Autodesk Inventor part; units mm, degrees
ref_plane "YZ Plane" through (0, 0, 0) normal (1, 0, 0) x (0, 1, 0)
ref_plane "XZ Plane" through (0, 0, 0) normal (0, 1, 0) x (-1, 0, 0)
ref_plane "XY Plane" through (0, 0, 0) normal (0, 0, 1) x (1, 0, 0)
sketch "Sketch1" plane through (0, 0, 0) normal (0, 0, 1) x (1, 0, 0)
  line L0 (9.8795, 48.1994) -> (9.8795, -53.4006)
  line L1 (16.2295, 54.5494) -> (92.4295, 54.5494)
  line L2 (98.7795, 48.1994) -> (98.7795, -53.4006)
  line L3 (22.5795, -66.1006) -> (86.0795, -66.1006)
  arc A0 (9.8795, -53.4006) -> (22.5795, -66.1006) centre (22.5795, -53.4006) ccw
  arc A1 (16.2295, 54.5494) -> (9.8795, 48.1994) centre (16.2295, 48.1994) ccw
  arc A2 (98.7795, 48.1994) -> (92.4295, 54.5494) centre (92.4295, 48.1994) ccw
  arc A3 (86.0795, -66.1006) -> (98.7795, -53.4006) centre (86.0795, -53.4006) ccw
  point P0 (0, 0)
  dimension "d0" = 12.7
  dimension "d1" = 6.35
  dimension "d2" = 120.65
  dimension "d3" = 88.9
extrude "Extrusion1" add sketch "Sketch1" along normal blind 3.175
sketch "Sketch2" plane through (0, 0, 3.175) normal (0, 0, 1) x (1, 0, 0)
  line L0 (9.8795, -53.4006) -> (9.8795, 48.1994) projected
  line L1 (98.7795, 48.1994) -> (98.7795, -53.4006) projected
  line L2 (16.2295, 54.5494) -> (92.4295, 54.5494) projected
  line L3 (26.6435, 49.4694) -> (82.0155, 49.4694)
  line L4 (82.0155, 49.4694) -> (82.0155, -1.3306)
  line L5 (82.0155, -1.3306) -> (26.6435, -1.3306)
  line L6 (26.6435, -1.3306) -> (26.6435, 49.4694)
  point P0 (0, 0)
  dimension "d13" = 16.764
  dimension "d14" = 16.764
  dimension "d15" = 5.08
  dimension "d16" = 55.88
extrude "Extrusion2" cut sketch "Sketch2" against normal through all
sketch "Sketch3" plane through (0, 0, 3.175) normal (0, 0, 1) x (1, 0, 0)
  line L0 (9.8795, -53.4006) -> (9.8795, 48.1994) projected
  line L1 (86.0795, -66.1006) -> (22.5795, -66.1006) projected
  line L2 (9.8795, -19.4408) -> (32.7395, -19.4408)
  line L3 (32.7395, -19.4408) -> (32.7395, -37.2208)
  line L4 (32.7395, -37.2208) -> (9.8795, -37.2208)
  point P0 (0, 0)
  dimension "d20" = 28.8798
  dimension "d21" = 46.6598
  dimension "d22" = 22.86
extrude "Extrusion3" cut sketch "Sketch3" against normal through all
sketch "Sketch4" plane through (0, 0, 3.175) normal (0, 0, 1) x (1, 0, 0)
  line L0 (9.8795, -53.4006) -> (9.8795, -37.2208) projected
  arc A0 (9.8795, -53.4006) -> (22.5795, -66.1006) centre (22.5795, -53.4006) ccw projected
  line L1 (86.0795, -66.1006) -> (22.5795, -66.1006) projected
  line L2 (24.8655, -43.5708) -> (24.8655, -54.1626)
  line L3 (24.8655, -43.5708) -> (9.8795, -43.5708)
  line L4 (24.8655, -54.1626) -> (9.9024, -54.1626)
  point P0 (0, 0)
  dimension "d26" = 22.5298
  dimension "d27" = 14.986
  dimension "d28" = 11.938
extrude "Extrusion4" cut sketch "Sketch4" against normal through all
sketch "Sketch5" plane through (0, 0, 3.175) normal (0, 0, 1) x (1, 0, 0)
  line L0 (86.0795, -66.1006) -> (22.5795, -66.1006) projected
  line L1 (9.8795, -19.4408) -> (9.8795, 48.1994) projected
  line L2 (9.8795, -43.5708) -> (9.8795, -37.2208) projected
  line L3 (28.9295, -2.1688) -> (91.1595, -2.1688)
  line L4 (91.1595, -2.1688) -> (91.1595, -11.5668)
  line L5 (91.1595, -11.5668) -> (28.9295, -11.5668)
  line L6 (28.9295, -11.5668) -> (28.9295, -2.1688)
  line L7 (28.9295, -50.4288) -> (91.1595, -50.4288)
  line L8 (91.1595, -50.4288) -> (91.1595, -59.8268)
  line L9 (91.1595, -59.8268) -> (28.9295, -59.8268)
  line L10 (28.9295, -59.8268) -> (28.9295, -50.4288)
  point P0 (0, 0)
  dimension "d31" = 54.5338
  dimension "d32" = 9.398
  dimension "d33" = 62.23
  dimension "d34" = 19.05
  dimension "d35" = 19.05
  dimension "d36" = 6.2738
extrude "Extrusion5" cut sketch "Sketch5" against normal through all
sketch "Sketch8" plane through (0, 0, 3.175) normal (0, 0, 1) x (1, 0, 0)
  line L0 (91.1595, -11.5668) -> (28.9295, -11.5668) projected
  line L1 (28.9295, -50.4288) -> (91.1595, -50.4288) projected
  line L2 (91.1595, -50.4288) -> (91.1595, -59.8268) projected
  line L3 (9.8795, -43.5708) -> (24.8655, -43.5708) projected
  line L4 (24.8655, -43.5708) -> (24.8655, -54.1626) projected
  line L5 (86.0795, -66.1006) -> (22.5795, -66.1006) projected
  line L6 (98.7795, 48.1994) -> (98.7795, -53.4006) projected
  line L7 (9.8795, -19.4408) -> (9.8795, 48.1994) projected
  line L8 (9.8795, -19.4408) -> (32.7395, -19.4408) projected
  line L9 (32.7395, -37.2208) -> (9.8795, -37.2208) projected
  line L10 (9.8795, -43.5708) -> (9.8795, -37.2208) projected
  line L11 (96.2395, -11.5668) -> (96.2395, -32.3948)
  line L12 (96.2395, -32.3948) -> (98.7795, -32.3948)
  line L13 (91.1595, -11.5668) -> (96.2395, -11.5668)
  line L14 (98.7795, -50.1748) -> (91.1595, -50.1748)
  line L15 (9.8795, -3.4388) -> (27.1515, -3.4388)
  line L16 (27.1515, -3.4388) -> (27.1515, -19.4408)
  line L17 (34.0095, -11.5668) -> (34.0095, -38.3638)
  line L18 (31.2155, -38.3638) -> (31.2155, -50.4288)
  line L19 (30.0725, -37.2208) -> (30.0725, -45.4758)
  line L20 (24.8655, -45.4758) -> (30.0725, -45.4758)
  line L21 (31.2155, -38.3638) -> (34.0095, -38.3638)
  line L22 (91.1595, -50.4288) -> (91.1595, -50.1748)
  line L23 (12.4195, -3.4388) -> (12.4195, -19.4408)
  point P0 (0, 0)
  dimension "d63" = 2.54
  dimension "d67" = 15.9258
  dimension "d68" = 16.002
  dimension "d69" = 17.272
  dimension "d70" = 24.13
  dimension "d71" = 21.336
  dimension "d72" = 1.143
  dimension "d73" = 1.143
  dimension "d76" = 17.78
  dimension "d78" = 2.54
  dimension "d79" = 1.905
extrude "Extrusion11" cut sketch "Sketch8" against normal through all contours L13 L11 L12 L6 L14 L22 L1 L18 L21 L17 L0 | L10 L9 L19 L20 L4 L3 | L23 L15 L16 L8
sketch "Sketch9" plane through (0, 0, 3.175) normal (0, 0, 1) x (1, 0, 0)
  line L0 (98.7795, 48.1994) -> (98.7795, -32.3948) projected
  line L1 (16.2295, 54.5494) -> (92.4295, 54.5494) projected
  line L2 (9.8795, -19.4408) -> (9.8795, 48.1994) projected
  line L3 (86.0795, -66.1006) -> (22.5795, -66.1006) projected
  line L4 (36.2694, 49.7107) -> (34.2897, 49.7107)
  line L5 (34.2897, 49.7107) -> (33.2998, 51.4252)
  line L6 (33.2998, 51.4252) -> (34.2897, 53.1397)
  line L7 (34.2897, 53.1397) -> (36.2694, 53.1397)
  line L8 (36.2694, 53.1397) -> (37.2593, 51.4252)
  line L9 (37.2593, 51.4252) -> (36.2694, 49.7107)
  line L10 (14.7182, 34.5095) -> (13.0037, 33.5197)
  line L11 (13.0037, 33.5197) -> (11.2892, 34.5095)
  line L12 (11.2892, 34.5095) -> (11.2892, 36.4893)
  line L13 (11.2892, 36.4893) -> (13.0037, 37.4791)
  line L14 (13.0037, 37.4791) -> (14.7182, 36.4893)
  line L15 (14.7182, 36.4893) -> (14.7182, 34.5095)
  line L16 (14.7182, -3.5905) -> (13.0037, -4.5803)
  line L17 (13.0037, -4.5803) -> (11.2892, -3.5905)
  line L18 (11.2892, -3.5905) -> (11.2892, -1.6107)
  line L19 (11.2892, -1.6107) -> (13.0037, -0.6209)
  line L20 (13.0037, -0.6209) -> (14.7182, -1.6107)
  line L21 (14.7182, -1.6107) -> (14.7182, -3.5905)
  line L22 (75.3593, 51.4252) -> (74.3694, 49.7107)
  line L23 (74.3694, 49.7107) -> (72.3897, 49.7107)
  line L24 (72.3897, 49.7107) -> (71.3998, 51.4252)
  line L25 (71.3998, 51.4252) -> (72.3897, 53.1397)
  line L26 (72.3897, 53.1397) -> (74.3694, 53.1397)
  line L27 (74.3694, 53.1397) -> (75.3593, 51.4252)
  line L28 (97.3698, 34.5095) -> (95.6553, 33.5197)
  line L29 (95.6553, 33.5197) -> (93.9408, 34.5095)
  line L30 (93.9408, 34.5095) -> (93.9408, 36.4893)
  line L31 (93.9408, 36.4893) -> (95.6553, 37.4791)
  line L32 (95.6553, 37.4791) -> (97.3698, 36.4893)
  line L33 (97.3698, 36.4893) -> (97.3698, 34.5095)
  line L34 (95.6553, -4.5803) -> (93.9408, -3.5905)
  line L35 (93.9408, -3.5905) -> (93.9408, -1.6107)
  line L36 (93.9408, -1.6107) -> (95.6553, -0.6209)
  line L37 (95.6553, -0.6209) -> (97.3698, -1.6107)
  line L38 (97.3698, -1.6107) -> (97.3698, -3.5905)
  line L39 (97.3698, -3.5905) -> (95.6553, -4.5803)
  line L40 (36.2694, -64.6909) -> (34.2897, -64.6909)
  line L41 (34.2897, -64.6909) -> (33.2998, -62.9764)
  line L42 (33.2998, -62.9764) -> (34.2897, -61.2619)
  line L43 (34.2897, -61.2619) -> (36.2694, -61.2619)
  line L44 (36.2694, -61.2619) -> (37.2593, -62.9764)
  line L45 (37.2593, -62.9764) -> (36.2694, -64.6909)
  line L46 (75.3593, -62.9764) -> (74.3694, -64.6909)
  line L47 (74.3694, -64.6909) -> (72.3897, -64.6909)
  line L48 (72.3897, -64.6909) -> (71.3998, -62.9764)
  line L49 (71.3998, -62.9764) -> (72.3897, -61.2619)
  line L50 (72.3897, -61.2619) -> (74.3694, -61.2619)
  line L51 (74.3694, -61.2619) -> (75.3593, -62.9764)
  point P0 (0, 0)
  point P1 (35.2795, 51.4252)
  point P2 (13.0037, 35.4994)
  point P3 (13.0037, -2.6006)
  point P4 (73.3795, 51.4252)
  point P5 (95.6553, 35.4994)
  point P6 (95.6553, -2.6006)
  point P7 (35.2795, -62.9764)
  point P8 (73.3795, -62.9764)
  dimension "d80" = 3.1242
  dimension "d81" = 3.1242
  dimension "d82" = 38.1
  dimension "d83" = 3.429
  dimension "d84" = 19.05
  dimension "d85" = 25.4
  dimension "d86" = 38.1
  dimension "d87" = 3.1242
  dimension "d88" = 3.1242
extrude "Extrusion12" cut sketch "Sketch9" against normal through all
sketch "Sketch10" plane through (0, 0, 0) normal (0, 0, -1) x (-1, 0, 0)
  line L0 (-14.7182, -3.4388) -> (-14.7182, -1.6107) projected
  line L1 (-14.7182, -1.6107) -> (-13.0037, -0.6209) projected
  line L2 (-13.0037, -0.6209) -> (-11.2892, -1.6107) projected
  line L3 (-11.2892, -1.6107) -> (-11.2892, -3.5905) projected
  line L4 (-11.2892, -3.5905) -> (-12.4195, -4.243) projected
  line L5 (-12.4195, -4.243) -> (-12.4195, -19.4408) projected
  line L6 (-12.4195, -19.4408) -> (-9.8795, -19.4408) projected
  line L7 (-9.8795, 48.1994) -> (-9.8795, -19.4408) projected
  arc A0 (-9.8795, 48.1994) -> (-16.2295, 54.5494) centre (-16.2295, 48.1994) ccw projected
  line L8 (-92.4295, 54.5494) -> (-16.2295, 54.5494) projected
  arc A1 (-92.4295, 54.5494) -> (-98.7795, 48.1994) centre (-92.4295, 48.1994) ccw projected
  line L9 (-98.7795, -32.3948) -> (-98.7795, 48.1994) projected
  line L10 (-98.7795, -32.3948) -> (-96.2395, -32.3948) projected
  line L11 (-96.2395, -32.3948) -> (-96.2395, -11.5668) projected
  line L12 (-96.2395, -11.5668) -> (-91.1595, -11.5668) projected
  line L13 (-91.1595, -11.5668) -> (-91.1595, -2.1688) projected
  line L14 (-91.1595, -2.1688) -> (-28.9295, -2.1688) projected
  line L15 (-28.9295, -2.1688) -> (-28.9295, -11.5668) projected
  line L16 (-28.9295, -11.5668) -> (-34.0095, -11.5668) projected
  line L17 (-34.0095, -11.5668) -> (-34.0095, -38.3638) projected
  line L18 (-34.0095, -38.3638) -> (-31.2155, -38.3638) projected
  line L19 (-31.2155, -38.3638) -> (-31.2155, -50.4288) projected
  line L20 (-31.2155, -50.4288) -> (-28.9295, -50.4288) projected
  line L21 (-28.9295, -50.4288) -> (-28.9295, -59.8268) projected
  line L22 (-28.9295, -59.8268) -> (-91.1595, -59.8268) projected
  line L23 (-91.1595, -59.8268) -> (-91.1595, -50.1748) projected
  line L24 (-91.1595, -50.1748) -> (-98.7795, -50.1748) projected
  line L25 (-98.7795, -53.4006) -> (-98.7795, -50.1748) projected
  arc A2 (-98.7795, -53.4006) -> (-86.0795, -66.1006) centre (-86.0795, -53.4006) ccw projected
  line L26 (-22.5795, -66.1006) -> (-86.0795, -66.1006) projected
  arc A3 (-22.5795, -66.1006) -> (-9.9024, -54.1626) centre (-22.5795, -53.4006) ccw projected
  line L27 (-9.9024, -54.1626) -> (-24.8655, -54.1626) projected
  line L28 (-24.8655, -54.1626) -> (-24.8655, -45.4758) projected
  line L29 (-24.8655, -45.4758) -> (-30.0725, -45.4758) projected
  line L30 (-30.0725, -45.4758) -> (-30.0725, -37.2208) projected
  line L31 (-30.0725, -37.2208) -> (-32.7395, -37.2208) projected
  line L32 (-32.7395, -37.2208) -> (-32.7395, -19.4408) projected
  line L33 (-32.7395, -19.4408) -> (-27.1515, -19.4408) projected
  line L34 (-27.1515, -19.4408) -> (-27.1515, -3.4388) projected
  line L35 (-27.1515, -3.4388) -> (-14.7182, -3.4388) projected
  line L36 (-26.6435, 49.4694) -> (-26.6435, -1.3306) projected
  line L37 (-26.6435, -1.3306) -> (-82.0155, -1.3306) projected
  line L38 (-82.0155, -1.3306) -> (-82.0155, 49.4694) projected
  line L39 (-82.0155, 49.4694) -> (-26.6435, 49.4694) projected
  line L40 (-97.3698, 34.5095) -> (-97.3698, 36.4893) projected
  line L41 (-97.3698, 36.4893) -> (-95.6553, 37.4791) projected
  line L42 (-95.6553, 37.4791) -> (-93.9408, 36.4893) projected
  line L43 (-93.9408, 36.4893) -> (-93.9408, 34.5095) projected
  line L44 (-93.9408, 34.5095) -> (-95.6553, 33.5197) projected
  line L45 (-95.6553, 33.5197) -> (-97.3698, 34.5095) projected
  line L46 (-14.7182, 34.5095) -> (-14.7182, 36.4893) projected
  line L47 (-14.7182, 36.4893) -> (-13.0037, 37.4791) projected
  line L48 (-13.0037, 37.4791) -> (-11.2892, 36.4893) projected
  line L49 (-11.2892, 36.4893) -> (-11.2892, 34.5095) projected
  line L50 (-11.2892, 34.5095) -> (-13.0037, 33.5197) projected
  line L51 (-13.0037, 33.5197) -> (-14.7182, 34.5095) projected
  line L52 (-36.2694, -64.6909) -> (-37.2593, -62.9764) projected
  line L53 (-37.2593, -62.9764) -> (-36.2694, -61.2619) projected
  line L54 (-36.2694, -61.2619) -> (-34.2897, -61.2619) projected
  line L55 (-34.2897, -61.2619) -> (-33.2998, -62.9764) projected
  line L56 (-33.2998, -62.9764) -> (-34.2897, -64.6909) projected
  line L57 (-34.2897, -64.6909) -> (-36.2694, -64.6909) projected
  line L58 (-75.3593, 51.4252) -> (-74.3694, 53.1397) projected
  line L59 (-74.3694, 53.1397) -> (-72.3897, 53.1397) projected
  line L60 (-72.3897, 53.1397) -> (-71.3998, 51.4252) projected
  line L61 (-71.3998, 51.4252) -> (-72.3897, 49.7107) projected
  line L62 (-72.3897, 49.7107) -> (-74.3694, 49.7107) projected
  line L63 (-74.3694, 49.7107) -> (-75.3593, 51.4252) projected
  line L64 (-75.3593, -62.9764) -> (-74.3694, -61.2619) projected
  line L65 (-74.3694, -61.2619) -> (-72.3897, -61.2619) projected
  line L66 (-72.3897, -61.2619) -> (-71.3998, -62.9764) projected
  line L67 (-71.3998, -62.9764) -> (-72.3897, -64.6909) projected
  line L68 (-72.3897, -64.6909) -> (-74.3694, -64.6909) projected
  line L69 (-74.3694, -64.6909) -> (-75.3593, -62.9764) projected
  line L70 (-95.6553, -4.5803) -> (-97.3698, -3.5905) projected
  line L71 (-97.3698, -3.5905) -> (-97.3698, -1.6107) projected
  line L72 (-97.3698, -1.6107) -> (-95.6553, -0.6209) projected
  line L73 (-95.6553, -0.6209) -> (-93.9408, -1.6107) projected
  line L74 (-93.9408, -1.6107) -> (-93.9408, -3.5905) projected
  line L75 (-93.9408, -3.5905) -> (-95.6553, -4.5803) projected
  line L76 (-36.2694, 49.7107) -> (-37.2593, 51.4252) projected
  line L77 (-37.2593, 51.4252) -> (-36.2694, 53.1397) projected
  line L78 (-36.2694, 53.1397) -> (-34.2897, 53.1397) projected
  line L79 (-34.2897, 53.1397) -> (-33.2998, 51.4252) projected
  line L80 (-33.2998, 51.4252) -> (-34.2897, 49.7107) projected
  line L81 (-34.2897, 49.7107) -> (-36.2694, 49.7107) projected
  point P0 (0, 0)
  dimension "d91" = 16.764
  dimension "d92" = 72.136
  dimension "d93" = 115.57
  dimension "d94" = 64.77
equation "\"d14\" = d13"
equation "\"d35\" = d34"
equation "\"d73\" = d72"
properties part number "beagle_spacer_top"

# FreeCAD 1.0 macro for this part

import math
import FreeCAD as App
import Part
import Sketcher

V = App.Vector
Q = App.Units.Quantity


def add_polygon(sketch, points):
    """Adds a closed chain of lines whose ends are joined by coincident constraints."""
    first, n = sketch.GeometryCount, len(points)
    for a, b in zip(points, points[1:] + points[:1]):
        sketch.addGeometry(Part.LineSegment(App.Vector(*a, 0), App.Vector(*b, 0)), False)
    for i in range(n):
        sketch.addConstraint(Sketcher.Constraint("Coincident", first + i, 2, first + (i + 1) % n, 1))

doc = App.newDocument("Part")
params = doc.addObject("Spreadsheet::Sheet", "Params")
for row, (alias, value) in enumerate([
    ("sketch1_radius", "0.5 in"),
    ("sketch1_radius2", "0.25 in"),
    ("sketch1_height", "4 in"),
    ("pad1_length", "0.125 in"),
    ("sketch2_height", "2 in"),
    ("sketch2_width", "2.18 in"),
    ("sketch3_width", "0.9 in"),
    ("sketch3_height", "0.7 in"),
    ("sketch4_width", "0.59 in"),
    ("sketch4_radius", "0.5 in"),
    ("sketch4_height", "0.387 in"),
    ("sketch4_height2", "0.417 in"),
    ("sketch5_width", "2.45 in"),
    ("sketch5_height", "0.37 in"),
    ("sketch6_width", "0.1 in"),
    ("sketch6_height", "0.7 in"),
    ("sketch6_height2", "0.63 in"),
    ("sketch6_height3", "0.075 in"),
    ("sketch6_width2", "0.3 in"),
], start=1):
    params.set(f"A{row}", alias)
    params.set(f"B{row}", "=" + value)
    params.setAlias(f"B{row}", alias)

body = doc.addObject("PartDesign::Body", "Body")

sketch1 = doc.addObject("Sketcher::SketchObject", "Sketch")
body.addObject(sketch1)
sketch1.AttachmentSupport = (doc.XY_Plane, [""])
sketch1.MapMode = "FlatFace"
sketch1.addGeometry(Part.ArcOfCircle(Part.Circle(V(16, 48, 0), V(0, 0, 1), 6), math.radians(90), math.radians(180)), False)
sketch1.addGeometry(Part.LineSegment(V(10, 48, 0), V(10, -53, 0)), False)
sketch1.addGeometry(Part.ArcOfCircle(Part.Circle(V(23, -53, 0), V(0, 0, 1), 13), math.radians(180), math.radians(270)), False)
sketch1.addGeometry(Part.LineSegment(V(23, -66, 0), V(86, -66, 0)), False)
sketch1.addGeometry(Part.ArcOfCircle(Part.Circle(V(86, -53, 0), V(0, 0, 1), 13), math.radians(-90), math.radians(0)), False)
sketch1.addGeometry(Part.LineSegment(V(99, -53, 0), V(99, 48, 0)), False)
sketch1.addGeometry(Part.ArcOfCircle(Part.Circle(V(92, 48, 0), V(0, 0, 1), 6), math.radians(0), math.radians(90)), False)
sketch1.addGeometry(Part.LineSegment(V(92, 55, 0), V(16, 55, 0)), False)
sketch1.addConstraint(Sketcher.Constraint("Tangent", 0, 2, 1, 1))
sketch1.addConstraint(Sketcher.Constraint("Tangent", 1, 2, 2, 1))
sketch1.addConstraint(Sketcher.Constraint("Tangent", 2, 2, 3, 1))
sketch1.addConstraint(Sketcher.Constraint("Tangent", 3, 2, 4, 1))
sketch1.addConstraint(Sketcher.Constraint("Tangent", 4, 2, 5, 1))
sketch1.addConstraint(Sketcher.Constraint("Tangent", 5, 2, 6, 1))
sketch1.addConstraint(Sketcher.Constraint("Tangent", 6, 2, 7, 1))
sketch1.addConstraint(Sketcher.Constraint("Tangent", 7, 2, 0, 1))
sketch1.addConstraint(Sketcher.Constraint("Vertical", 1))
sketch1.addConstraint(Sketcher.Constraint("Horizontal", 3))
sketch1.addConstraint(Sketcher.Constraint("Vertical", 5))
sketch1.addConstraint(Sketcher.Constraint("Horizontal", 7))
sketch1.addConstraint(Sketcher.Constraint("Equal", 2, 4))
sketch1.addConstraint(Sketcher.Constraint("Equal", 0, 6))
sketch1.addConstraint(Sketcher.Constraint("Radius", 2, Q("0.5 in")))
sketch1.addConstraint(Sketcher.Constraint("Radius", 0, Q("0.25 in")))
sketch1.addConstraint(Sketcher.Constraint("DistanceX", 1, 2, 4, 2, Q("3.5 in")))
sketch1.addConstraint(Sketcher.Constraint("DistanceY", 1, 2, 1, 1, Q("4 in")))
sketch1.addConstraint(Sketcher.Constraint("DistanceX", -1, 1, 0, 3, 16.2295))
sketch1.addConstraint(Sketcher.Constraint("DistanceY", -1, 1, 0, 3, 48.1994))
sketch1.setExpression("Constraints[14]", "Params.sketch1_radius")
sketch1.setExpression("Constraints[15]", "Params.sketch1_radius2")
sketch1.setExpression("Constraints[17]", "Params.sketch1_height")
pad1 = doc.addObject("PartDesign::Pad", "Pad")
body.addObject(pad1)
pad1.Profile = sketch1
pad1.setExpression("Length", "Params.pad1_length")

sketch2 = doc.addObject("Sketcher::SketchObject", "Sketch001")
body.addObject(sketch2)
sketch2.AttachmentSupport = (doc.XY_Plane, [""])
sketch2.MapMode = "FlatFace"
sketch2.AttachmentOffset = App.Placement(V(0, 0, 0.125 * 25.4), App.Rotation())
add_polygon(sketch2, [(82, 49), (27, 49), (27, -1), (82, -1)])
sketch2.addConstraint(Sketcher.Constraint("Horizontal", 0))
sketch2.addConstraint(Sketcher.Constraint("Vertical", 1))
sketch2.addConstraint(Sketcher.Constraint("Horizontal", 2))
sketch2.addConstraint(Sketcher.Constraint("Vertical", 3))
sketch2.addConstraint(Sketcher.Constraint("DistanceY", 1, 2, 1, 1, Q("2 in")))
sketch2.addConstraint(Sketcher.Constraint("DistanceX", 0, 2, 0, 1, Q("2.18 in")))
sketch2.addConstraint(Sketcher.Constraint("DistanceX", -1, 1, 0, 2, 26.6435))
sketch2.addConstraint(Sketcher.Constraint("DistanceY", -1, 1, 0, 2, 49.4694))
sketch2.setExpression("Constraints[8]", "Params.sketch2_height")
sketch2.setExpression("Constraints[9]", "Params.sketch2_width")
pocket1 = doc.addObject("PartDesign::Pocket", "Pocket")
body.addObject(pocket1)
pocket1.Profile = sketch2
pocket1.Type = "ThroughAll"

sketch3 = doc.addObject("Sketcher::SketchObject", "Sketch002")
body.addObject(sketch3)
sketch3.AttachmentSupport = (doc.XY_Plane, [""])
sketch3.MapMode = "FlatFace"
sketch3.AttachmentOffset = App.Placement(V(0, 0, 0.125 * 25.4), App.Rotation())
add_polygon(sketch3, [(10, -19), (10, -37), (33, -37), (33, -19)])
sketch3.addConstraint(Sketcher.Constraint("Vertical", 0))
sketch3.addConstraint(Sketcher.Constraint("Horizontal", 1))
sketch3.addConstraint(Sketcher.Constraint("Vertical", 2))
sketch3.addConstraint(Sketcher.Constraint("Horizontal", 3))
sketch3.addConstraint(Sketcher.Constraint("DistanceX", 1, 1, 1, 2, Q("0.9 in")))
sketch3.addConstraint(Sketcher.Constraint("DistanceY", 0, 2, 0, 1, Q("0.7 in")))
sketch3.addConstraint(Sketcher.Constraint("DistanceX", -1, 1, 0, 2, 9.8795))
sketch3.addConstraint(Sketcher.Constraint("DistanceY", 0, 2, -1, 1, 37.2208))
sketch3.setExpression("Constraints[8]", "Params.sketch3_width")
sketch3.setExpression("Constraints[9]", "Params.sketch3_height")
pocket2 = doc.addObject("PartDesign::Pocket", "Pocket001")
body.addObject(pocket2)
pocket2.Profile = sketch3
pocket2.Type = "ThroughAll"

sketch4 = doc.addObject("Sketcher::SketchObject", "Sketch003")
body.addObject(sketch4)
sketch4.AttachmentSupport = (doc.XY_Plane, [""])
sketch4.MapMode = "FlatFace"
sketch4.AttachmentOffset = App.Placement(V(0, 0, 0.125 * 25.4), App.Rotation())
sketch4.addGeometry(Part.LineSegment(V(9.9, -43.6, 0), V(9.9, -53.4, 0)), False)
sketch4.addGeometry(Part.ArcOfCircle(Part.Circle(V(22.6, -53.4, 0), V(0, 0, 1), 12.7), math.radians(180), math.radians(183.44)), False)
sketch4.addGeometry(Part.LineSegment(V(9.9, -54.2, 0), V(24.9, -54.2, 0)), False)
sketch4.addGeometry(Part.LineSegment(V(24.9, -54.2, 0), V(24.9, -43.6, 0)), False)
sketch4.addGeometry(Part.LineSegment(V(24.9, -43.6, 0), V(9.9, -43.6, 0)), False)
sketch4.addConstraint(Sketcher.Constraint("Tangent", 0, 2, 1, 1))
sketch4.addConstraint(Sketcher.Constraint("Coincident", 1, 2, 2, 1))
sketch4.addConstraint(Sketcher.Constraint("Coincident", 2, 2, 3, 1))
sketch4.addConstraint(Sketcher.Constraint("Coincident", 3, 2, 4, 1))
sketch4.addConstraint(Sketcher.Constraint("Coincident", 4, 2, 0, 1))
sketch4.addConstraint(Sketcher.Constraint("Vertical", 0))
sketch4.addConstraint(Sketcher.Constraint("Horizontal", 2))
sketch4.addConstraint(Sketcher.Constraint("Vertical", 3))
sketch4.addConstraint(Sketcher.Constraint("Horizontal", 4))
sketch4.addConstraint(Sketcher.Constraint("DistanceX", 4, 2, 4, 1, Q("0.59 in")))
sketch4.addConstraint(Sketcher.Constraint("Radius", 1, Q("0.5 in")))
sketch4.addConstraint(Sketcher.Constraint("DistanceY", 0, 2, 0, 1, Q("0.387 in")))
sketch4.addConstraint(Sketcher.Constraint("DistanceY", 3, 1, 3, 2, Q("0.417 in")))
sketch4.addConstraint(Sketcher.Constraint("DistanceX", -1, 1, 1, 3, 22.5795))
sketch4.addConstraint(Sketcher.Constraint("DistanceY", 1, 3, -1, 1, 53.4006))
sketch4.setExpression("Constraints[9]", "Params.sketch4_width")
sketch4.setExpression("Constraints[10]", "Params.sketch4_radius")
sketch4.setExpression("Constraints[11]", "Params.sketch4_height")
sketch4.setExpression("Constraints[12]", "Params.sketch4_height2")
pocket3 = doc.addObject("PartDesign::Pocket", "Pocket002")
body.addObject(pocket3)
pocket3.Profile = sketch4
pocket3.Type = "ThroughAll"

sketch5 = doc.addObject("Sketcher::SketchObject", "Sketch004")
body.addObject(sketch5)
sketch5.AttachmentSupport = (doc.XY_Plane, [""])
sketch5.MapMode = "FlatFace"
sketch5.AttachmentOffset = App.Placement(V(0, 0, 0.125 * 25.4), App.Rotation())
add_polygon(sketch5, [(91, -2), (29, -2), (29, -12), (91, -12)])
add_polygon(sketch5, [(91, -50), (29, -50), (29, -60), (91, -60)])
sketch5.addConstraint(Sketcher.Constraint("Horizontal", 0))
sketch5.addConstraint(Sketcher.Constraint("Vertical", 1))
sketch5.addConstraint(Sketcher.Constraint("Horizontal", 2))
sketch5.addConstraint(Sketcher.Constraint("Vertical", 3))
sketch5.addConstraint(Sketcher.Constraint("Horizontal", 4))
sketch5.addConstraint(Sketcher.Constraint("Vertical", 5))
sketch5.addConstraint(Sketcher.Constraint("Horizontal", 6))
sketch5.addConstraint(Sketcher.Constraint("Vertical", 7))
sketch5.addConstraint(Sketcher.Constraint("Vertical", 1, 2, 4, 2))
sketch5.addConstraint(Sketcher.Constraint("Vertical", 3, 2, 6, 2))
sketch5.addConstraint(Sketcher.Constraint("Equal", 3, 5))
sketch5.addConstraint(Sketcher.Constraint("DistanceX", 0, 2, 0, 1, Q("2.45 in")))
sketch5.addConstraint(Sketcher.Constraint("DistanceY", 1, 2, 1, 1, Q("0.37 in")))
sketch5.addConstraint(Sketcher.Constraint("DistanceY", 4, 2, 0, 2, Q("1.9 in")))
sketch5.addConstraint(Sketcher.Constraint("DistanceX", -1, 1, 0, 2, 28.9295))
sketch5.addConstraint(Sketcher.Constraint("DistanceY", 0, 2, -1, 1, 2.1688))
sketch5.setExpression("Constraints[19]", "Params.sketch5_width")
sketch5.setExpression("Constraints[20]", "Params.sketch5_height")
pocket4 = doc.addObject("PartDesign::Pocket", "Pocket003")
body.addObject(pocket4)
pocket4.Profile = sketch5
pocket4.Type = "ThroughAll"

sketch6 = doc.addObject("Sketcher::SketchObject", "Sketch005")
body.addObject(sketch6)
sketch6.AttachmentSupport = (doc.XY_Plane, [""])
sketch6.MapMode = "FlatFace"
sketch6.AttachmentOffset = App.Placement(V(0, 0, 0.125 * 25.4), App.Rotation())
add_polygon(sketch6, [(96.24, -11.57), (34.01, -11.57), (34.01, -38.36), (31.22, -38.36), (31.22, -50.43), (91.16, -50.43), (91.16, -50.17), (98.78, -50.17), (98.78, -32.39), (96.24, -32.39)])
add_polygon(sketch6, [(9.88, -37.22), (9.88, -43.57), (24.87, -43.57), (24.87, -45.48), (30.07, -45.48), (30.07, -37.22)])
add_polygon(sketch6, [(12.42, -3.44), (12.42, -19.44), (27.15, -19.44), (27.15, -3.44)])
sketch6.addConstraint(Sketcher.Constraint("Horizontal", 0))
sketch6.addConstraint(Sketcher.Constraint("Vertical", 1))
sketch6.addConstraint(Sketcher.Constraint("Horizontal", 2))
sketch6.addConstraint(Sketcher.Constraint("Vertical", 3))
sketch6.addConstraint(Sketcher.Constraint("Horizontal", 4))
sketch6.addConstraint(Sketcher.Constraint("Vertical", 5))
sketch6.addConstraint(Sketcher.Constraint("Horizontal", 6))
sketch6.addConstraint(Sketcher.Constraint("Vertical", 7))
sketch6.addConstraint(Sketcher.Constraint("Horizontal", 8))
sketch6.addConstraint(Sketcher.Constraint("Vertical", 9))
sketch6.addConstraint(Sketcher.Constraint("Vertical", 10))
sketch6.addConstraint(Sketcher.Constraint("Horizontal", 11))
sketch6.addConstraint(Sketcher.Constraint("Vertical", 12))
sketch6.addConstraint(Sketcher.Constraint("Horizontal", 13))
sketch6.addConstraint(Sketcher.Constraint("Vertical", 14))
sketch6.addConstraint(Sketcher.Constraint("Horizontal", 15))
sketch6.addConstraint(Sketcher.Constraint("Vertical", 16))
sketch6.addConstraint(Sketcher.Constraint("Horizontal", 17))
sketch6.addConstraint(Sketcher.Constraint("Vertical", 18))
sketch6.addConstraint(Sketcher.Constraint("Horizontal", 19))
sketch6.addConstraint(Sketcher.Constraint("DistanceX", 8, 2, 8, 1, Q("0.1 in")))
sketch6.addConstraint(Sketcher.Constraint("DistanceY", 7, 1, 7, 2, Q("0.7 in")))
sketch6.addConstraint(Sketcher.Constraint("DistanceY", 16, 2, 16, 1, Q("0.63 in")))
sketch6.addConstraint(Sketcher.Constraint("DistanceX", 15, 2, 16, 2, Q("0.1 in")))
sketch6.addConstraint(Sketcher.Constraint("DistanceY", 15, 2, 16, 2, Q("0.7 in")))
sketch6.addConstraint(Sketcher.Constraint("DistanceY", 12, 2, 12, 1, Q("0.075 in")))
sketch6.addConstraint(Sketcher.Constraint("DistanceX", 10, 2, 2, 2, Q("0.84 in")))
sketch6.addConstraint(Sketcher.Constraint("DistanceX", 10, 2, 1, 2, Q("0.95 in")))
sketch6.addConstraint(Sketcher.Constraint("DistanceY", 10, 2, 16, 2, Q("0.95 in")))
sketch6.addConstraint(Sketcher.Constraint("DistanceX", 6, 1, 6, 2, Q("0.3 in")))
sketch6.addConstraint(Sketcher.Constraint("DistanceX", 13, 2, 3, 2, Q("0.045 in")))
sketch6.addConstraint(Sketcher.Constraint("DistanceY", 2, 2, 14, 2, Q("0.045 in")))
sketch6.addConstraint(Sketcher.Constraint("DistanceX", 0, 2, 0, 1, Q("2.45 in")))
sketch6.addConstraint(Sketcher.Constraint("DistanceX", 11, 1, 11, 2, Q("0.59 in")))
sketch6.addConstraint(Sketcher.Constraint("DistanceX", 17, 1, 17, 2, Q("0.58 in")))
sketch6.addConstraint(Sketcher.Constraint("DistanceY", 5, 1, 5, 2, Q("0.01 in")))
sketch6.addConstraint(Sketcher.Constraint("DistanceY", 9, 1, 9, 2, Q("0.82 in")))
sketch6.addConstraint(Sketcher.Constraint("DistanceY", 1, 2, 1, 1, Q("1.055 in")))
sketch6.addConstraint(Sketcher.Constraint("DistanceX", -1, 1, 0, 2, 34.0095))
sketch6.addConstraint(Sketcher.Constraint("DistanceY", 0, 2, -1, 1, 11.5668))
sketch6.setExpression("Constraints[40]", "Params.sketch6_width")
sketch6.setExpression("Constraints[41]", "Params.sketch6_height")
sketch6.setExpression("Constraints[42]", "Params.sketch6_height2")
sketch6.setExpression("Constraints[45]", "Params.sketch6_height3")
sketch6.setExpression("Constraints[49]", "Params.sketch6_width2")
pocket5 = doc.addObject("PartDesign::Pocket", "Pocket004")
body.addObject(pocket5)
pocket5.Profile = sketch6
pocket5.Type = "ThroughAll"

sketch7 = doc.addObject("Sketcher::SketchObject", "Sketch006")
body.addObject(sketch7)
sketch7.AttachmentSupport = (doc.XY_Plane, [""])
sketch7.MapMode = "FlatFace"
sketch7.AttachmentOffset = App.Placement(V(0, 0, 0.125 * 25.4), App.Rotation())
add_polygon(sketch7, [(34.3, 49.7), (36.3, 49.7), (37.3, 51.4), (36.3, 53.1), (34.3, 53.1), (33.3, 51.4)])
add_polygon(sketch7, [(13, 33.5), (14.7, 34.5), (14.7, 36.5), (13, 37.5), (11.3, 36.5), (11.3, 34.5)])
add_polygon(sketch7, [(13, -4.6), (14.7, -3.6), (14.7, -1.6), (13, -0.6), (11.3, -1.6), (11.3, -3.6)])
add_polygon(sketch7, [(74.4, 49.7), (75.4, 51.4), (74.4, 53.1), (72.4, 53.1), (71.4, 51.4), (72.4, 49.7)])
add_polygon(sketch7, [(95.7, 33.5), (97.4, 34.5), (97.4, 36.5), (95.7, 37.5), (93.9, 36.5), (93.9, 34.5)])
add_polygon(sketch7, [(93.9, -3.6), (95.7, -4.6), (97.4, -3.6), (97.4, -1.6), (95.7, -0.6), (93.9, -1.6)])
add_polygon(sketch7, [(34.3, -64.7), (36.3, -64.7), (37.3, -63), (36.3, -61.3), (34.3, -61.3), (33.3, -63)])
add_polygon(sketch7, [(74.4, -64.7), (75.4, -63), (74.4, -61.3), (72.4, -61.3), (71.4, -63), (72.4, -64.7)])
sketch7.addConstraint(Sketcher.Constraint("Horizontal", 0))
sketch7.addConstraint(Sketcher.Constraint("Horizontal", 3))
sketch7.addConstraint(Sketcher.Constraint("Vertical", 7))
sketch7.addConstraint(Sketcher.Constraint("Vertical", 10))
sketch7.addConstraint(Sketcher.Constraint("Vertical", 13))
sketch7.addConstraint(Sketcher.Constraint("Vertical", 16))
sketch7.addConstraint(Sketcher.Constraint("Horizontal", 20))
sketch7.addConstraint(Sketcher.Constraint("Horizontal", 23))
sketch7.addConstraint(Sketcher.Constraint("Vertical", 25))
sketch7.addConstraint(Sketcher.Constraint("Vertical", 28))
sketch7.addConstraint(Sketcher.Constraint("Vertical", 32))
sketch7.addConstraint(Sketcher.Constraint("Vertical", 35))
sketch7.addConstraint(Sketcher.Constraint("Horizontal", 36))
sketch7.addConstraint(Sketcher.Constraint("Horizontal", 39))
sketch7.addConstraint(Sketcher.Constraint("Horizontal", 44))
sketch7.addConstraint(Sketcher.Constraint("Horizontal", 47))
sketch7.addConstraint(Sketcher.Constraint("Parallel", 1, 4))
sketch7.addConstraint(Sketcher.Constraint("Parallel", 2, 5))
sketch7.addConstraint(Sketcher.Constraint("Perpendicular", 5, 6))
sketch7.addConstraint(Sketcher.Constraint("Perpendicular", 4, 8))
sketch7.addConstraint(Sketcher.Constraint("Parallel", 6, 9))
sketch7.addConstraint(Sketcher.Constraint("Parallel", 8, 11))
sketch7.addConstraint(Sketcher.Constraint("Parallel", 9, 12))
sketch7.addConstraint(Sketcher.Constraint("Parallel", 11, 14))
sketch7.addConstraint(Sketcher.Constraint("Parallel", 12, 15))
sketch7.addConstraint(Sketcher.Constraint("Parallel", 14, 17))
sketch7.addConstraint(Sketcher.Constraint("Perpendicular", 17, 18))
sketch7.addConstraint(Sketcher.Constraint("Perpendicular", 15, 19))
sketch7.addConstraint(Sketcher.Constraint("Parallel", 18, 21))
sketch7.addConstraint(Sketcher.Constraint("Parallel", 19, 22))
sketch7.addConstraint(Sketcher.Constraint("Perpendicular", 22, 24))
sketch7.addConstraint(Sketcher.Constraint("Perpendicular", 21, 26))
sketch7.addConstraint(Sketcher.Constraint("Parallel", 24, 27))
sketch7.addConstraint(Sketcher.Constraint("Parallel", 26, 29))
sketch7.addConstraint(Sketcher.Constraint("Parallel", 29, 30))
sketch7.addConstraint(Sketcher.Constraint("Parallel", 27, 31))
sketch7.addConstraint(Sketcher.Constraint("Parallel", 30, 33))
sketch7.addConstraint(Sketcher.Constraint("Parallel", 31, 34))
sketch7.addConstraint(Sketcher.Constraint("Perpendicular", 33, 37))
sketch7.addConstraint(Sketcher.Constraint("Perpendicular", 34, 38))
sketch7.addConstraint(Sketcher.Constraint("Parallel", 37, 40))
sketch7.addConstraint(Sketcher.Constraint("Parallel", 38, 41))
sketch7.addConstraint(Sketcher.Constraint("Parallel", 40, 42))
sketch7.addConstraint(Sketcher.Constraint("Parallel", 41, 43))
sketch7.addConstraint(Sketcher.Constraint("Parallel", 42, 45))
sketch7.addConstraint(Sketcher.Constraint("Parallel", 43, 46))
sketch7.addConstraint(Sketcher.Constraint("Horizontal", 1, 2, 4, 2))
sketch7.addConstraint(Sketcher.Constraint("Horizontal", 7, 2, 9, 2))
sketch7.addConstraint(Sketcher.Constraint("Horizontal", 6, 2, 10, 2))
sketch7.addConstraint(Sketcher.Constraint("Horizontal", 13, 2, 15, 2))
sketch7.addConstraint(Sketcher.Constraint("Horizontal", 12, 2, 16, 2))
sketch7.addConstraint(Sketcher.Constraint("Horizontal", 4, 2, 18, 2))
sketch7.addConstraint(Sketcher.Constraint("Horizontal", 3, 2, 19, 2))
sketch7.addConstraint(Sketcher.Constraint("Horizontal", 18, 2, 21, 2))
sketch7.addConstraint(Sketcher.Constraint("Horizontal", 5, 2, 22, 2))
sketch7.addConstraint(Sketcher.Constraint("Horizontal", 10, 2, 24, 2))
sketch7.addConstraint(Sketcher.Constraint("Horizontal", 9, 2, 25, 2))
sketch7.addConstraint(Sketcher.Constraint("Horizontal", 8, 2, 26, 2))
sketch7.addConstraint(Sketcher.Constraint("Horizontal", 25, 2, 27, 2))
sketch7.addConstraint(Sketcher.Constraint("Horizontal", 24, 2, 28, 2))
sketch7.addConstraint(Sketcher.Constraint("Horizontal", 17, 2, 30, 2))
sketch7.addConstraint(Sketcher.Constraint("Horizontal", 16, 2, 31, 2))
sketch7.addConstraint(Sketcher.Constraint("Horizontal", 15, 2, 32, 2))
sketch7.addConstraint(Sketcher.Constraint("Horizontal", 14, 2, 33, 2))
sketch7.addConstraint(Sketcher.Constraint("Horizontal", 32, 2, 34, 2))
sketch7.addConstraint(Sketcher.Constraint("Horizontal", 37, 2, 40, 2))
sketch7.addConstraint(Sketcher.Constraint("Horizontal", 40, 2, 42, 2))
sketch7.addConstraint(Sketcher.Constraint("Horizontal", 39, 2, 43, 2))
sketch7.addConstraint(Sketcher.Constraint("Horizontal", 42, 2, 45, 2))
sketch7.addConstraint(Sketcher.Constraint("Horizontal", 41, 2, 46, 2))
sketch7.addConstraint(Sketcher.Constraint("Vertical", 0, 2, 2, 2))
sketch7.addConstraint(Sketcher.Constraint("Vertical", 3, 2, 5, 2))
sketch7.addConstraint(Sketcher.Constraint("Vertical", 7, 2, 12, 2))
sketch7.addConstraint(Sketcher.Constraint("Vertical", 11, 2, 14, 2))
sketch7.addConstraint(Sketcher.Constraint("Vertical", 29, 2, 30, 2))
sketch7.addConstraint(Sketcher.Constraint("Vertical", 2, 2, 36, 2))
sketch7.addConstraint(Sketcher.Constraint("Vertical", 1, 2, 37, 2))
sketch7.addConstraint(Sketcher.Constraint("Vertical", 36, 2, 38, 2))
sketch7.addConstraint(Sketcher.Constraint("Vertical", 5, 2, 39, 2))
sketch7.addConstraint(Sketcher.Constraint("Vertical", 18, 2, 42, 2))
sketch7.addConstraint(Sketcher.Constraint("Vertical", 22, 2, 44, 2))
sketch7.addConstraint(Sketcher.Constraint("Equal", 3, 20))
sketch7.addConstraint(Sketcher.Constraint("Equal", 47, 7))
sketch7.addConstraint(Sketcher.Constraint("Equal", 10, 13))
sketch7.addConstraint(Sketcher.Constraint("Equal", 5, 6))
sketch7.addConstraint(Sketcher.Constraint("DistanceY", 12, 2, 6, 2, Q("1.5 in")))
sketch7.addConstraint(Sketcher.Constraint("DistanceX", 1, 2, 18, 2, Q("1.5 in")))
sketch7.addConstraint(Sketcher.Constraint("Angle", 1, Q("59.9992 deg")))
sketch7.addConstraint(Sketcher.Constraint("DistanceY", 0, 2, 2, 2, Q("0.135 in")))
sketch7.addConstraint(Sketcher.Constraint("DistanceX", -1, 1, 3, 2, Q("1.35 in")))
sketch7.addConstraint(Sketcher.Constraint("DistanceX", 0, 1, 0, 2, 1.9797))
sketch7.addConstraint(Sketcher.Constraint("DistanceY", -1, 1, 0, 2, 49.7107))
sketch7.addConstraint(Sketcher.Constraint("DistanceX", -1, 1, 6, 2, 14.7182))
sketch7.addConstraint(Sketcher.Constraint("DistanceY", -1, 1, 6, 2, 34.5095))
sketch7.addConstraint(Sketcher.Constraint("DistanceX", -1, 1, 24, 2, 97.3698))
sketch7.addConstraint(Sketcher.Constraint("DistanceY", 36, 2, -1, 1, Q("2.5468898 in")))
pocket6 = doc.addObject("PartDesign::Pocket", "Pocket005")
body.addObject(pocket6)
pocket6.Profile = sketch7
pocket6.Type = "ThroughAll"

doc.recompute()
